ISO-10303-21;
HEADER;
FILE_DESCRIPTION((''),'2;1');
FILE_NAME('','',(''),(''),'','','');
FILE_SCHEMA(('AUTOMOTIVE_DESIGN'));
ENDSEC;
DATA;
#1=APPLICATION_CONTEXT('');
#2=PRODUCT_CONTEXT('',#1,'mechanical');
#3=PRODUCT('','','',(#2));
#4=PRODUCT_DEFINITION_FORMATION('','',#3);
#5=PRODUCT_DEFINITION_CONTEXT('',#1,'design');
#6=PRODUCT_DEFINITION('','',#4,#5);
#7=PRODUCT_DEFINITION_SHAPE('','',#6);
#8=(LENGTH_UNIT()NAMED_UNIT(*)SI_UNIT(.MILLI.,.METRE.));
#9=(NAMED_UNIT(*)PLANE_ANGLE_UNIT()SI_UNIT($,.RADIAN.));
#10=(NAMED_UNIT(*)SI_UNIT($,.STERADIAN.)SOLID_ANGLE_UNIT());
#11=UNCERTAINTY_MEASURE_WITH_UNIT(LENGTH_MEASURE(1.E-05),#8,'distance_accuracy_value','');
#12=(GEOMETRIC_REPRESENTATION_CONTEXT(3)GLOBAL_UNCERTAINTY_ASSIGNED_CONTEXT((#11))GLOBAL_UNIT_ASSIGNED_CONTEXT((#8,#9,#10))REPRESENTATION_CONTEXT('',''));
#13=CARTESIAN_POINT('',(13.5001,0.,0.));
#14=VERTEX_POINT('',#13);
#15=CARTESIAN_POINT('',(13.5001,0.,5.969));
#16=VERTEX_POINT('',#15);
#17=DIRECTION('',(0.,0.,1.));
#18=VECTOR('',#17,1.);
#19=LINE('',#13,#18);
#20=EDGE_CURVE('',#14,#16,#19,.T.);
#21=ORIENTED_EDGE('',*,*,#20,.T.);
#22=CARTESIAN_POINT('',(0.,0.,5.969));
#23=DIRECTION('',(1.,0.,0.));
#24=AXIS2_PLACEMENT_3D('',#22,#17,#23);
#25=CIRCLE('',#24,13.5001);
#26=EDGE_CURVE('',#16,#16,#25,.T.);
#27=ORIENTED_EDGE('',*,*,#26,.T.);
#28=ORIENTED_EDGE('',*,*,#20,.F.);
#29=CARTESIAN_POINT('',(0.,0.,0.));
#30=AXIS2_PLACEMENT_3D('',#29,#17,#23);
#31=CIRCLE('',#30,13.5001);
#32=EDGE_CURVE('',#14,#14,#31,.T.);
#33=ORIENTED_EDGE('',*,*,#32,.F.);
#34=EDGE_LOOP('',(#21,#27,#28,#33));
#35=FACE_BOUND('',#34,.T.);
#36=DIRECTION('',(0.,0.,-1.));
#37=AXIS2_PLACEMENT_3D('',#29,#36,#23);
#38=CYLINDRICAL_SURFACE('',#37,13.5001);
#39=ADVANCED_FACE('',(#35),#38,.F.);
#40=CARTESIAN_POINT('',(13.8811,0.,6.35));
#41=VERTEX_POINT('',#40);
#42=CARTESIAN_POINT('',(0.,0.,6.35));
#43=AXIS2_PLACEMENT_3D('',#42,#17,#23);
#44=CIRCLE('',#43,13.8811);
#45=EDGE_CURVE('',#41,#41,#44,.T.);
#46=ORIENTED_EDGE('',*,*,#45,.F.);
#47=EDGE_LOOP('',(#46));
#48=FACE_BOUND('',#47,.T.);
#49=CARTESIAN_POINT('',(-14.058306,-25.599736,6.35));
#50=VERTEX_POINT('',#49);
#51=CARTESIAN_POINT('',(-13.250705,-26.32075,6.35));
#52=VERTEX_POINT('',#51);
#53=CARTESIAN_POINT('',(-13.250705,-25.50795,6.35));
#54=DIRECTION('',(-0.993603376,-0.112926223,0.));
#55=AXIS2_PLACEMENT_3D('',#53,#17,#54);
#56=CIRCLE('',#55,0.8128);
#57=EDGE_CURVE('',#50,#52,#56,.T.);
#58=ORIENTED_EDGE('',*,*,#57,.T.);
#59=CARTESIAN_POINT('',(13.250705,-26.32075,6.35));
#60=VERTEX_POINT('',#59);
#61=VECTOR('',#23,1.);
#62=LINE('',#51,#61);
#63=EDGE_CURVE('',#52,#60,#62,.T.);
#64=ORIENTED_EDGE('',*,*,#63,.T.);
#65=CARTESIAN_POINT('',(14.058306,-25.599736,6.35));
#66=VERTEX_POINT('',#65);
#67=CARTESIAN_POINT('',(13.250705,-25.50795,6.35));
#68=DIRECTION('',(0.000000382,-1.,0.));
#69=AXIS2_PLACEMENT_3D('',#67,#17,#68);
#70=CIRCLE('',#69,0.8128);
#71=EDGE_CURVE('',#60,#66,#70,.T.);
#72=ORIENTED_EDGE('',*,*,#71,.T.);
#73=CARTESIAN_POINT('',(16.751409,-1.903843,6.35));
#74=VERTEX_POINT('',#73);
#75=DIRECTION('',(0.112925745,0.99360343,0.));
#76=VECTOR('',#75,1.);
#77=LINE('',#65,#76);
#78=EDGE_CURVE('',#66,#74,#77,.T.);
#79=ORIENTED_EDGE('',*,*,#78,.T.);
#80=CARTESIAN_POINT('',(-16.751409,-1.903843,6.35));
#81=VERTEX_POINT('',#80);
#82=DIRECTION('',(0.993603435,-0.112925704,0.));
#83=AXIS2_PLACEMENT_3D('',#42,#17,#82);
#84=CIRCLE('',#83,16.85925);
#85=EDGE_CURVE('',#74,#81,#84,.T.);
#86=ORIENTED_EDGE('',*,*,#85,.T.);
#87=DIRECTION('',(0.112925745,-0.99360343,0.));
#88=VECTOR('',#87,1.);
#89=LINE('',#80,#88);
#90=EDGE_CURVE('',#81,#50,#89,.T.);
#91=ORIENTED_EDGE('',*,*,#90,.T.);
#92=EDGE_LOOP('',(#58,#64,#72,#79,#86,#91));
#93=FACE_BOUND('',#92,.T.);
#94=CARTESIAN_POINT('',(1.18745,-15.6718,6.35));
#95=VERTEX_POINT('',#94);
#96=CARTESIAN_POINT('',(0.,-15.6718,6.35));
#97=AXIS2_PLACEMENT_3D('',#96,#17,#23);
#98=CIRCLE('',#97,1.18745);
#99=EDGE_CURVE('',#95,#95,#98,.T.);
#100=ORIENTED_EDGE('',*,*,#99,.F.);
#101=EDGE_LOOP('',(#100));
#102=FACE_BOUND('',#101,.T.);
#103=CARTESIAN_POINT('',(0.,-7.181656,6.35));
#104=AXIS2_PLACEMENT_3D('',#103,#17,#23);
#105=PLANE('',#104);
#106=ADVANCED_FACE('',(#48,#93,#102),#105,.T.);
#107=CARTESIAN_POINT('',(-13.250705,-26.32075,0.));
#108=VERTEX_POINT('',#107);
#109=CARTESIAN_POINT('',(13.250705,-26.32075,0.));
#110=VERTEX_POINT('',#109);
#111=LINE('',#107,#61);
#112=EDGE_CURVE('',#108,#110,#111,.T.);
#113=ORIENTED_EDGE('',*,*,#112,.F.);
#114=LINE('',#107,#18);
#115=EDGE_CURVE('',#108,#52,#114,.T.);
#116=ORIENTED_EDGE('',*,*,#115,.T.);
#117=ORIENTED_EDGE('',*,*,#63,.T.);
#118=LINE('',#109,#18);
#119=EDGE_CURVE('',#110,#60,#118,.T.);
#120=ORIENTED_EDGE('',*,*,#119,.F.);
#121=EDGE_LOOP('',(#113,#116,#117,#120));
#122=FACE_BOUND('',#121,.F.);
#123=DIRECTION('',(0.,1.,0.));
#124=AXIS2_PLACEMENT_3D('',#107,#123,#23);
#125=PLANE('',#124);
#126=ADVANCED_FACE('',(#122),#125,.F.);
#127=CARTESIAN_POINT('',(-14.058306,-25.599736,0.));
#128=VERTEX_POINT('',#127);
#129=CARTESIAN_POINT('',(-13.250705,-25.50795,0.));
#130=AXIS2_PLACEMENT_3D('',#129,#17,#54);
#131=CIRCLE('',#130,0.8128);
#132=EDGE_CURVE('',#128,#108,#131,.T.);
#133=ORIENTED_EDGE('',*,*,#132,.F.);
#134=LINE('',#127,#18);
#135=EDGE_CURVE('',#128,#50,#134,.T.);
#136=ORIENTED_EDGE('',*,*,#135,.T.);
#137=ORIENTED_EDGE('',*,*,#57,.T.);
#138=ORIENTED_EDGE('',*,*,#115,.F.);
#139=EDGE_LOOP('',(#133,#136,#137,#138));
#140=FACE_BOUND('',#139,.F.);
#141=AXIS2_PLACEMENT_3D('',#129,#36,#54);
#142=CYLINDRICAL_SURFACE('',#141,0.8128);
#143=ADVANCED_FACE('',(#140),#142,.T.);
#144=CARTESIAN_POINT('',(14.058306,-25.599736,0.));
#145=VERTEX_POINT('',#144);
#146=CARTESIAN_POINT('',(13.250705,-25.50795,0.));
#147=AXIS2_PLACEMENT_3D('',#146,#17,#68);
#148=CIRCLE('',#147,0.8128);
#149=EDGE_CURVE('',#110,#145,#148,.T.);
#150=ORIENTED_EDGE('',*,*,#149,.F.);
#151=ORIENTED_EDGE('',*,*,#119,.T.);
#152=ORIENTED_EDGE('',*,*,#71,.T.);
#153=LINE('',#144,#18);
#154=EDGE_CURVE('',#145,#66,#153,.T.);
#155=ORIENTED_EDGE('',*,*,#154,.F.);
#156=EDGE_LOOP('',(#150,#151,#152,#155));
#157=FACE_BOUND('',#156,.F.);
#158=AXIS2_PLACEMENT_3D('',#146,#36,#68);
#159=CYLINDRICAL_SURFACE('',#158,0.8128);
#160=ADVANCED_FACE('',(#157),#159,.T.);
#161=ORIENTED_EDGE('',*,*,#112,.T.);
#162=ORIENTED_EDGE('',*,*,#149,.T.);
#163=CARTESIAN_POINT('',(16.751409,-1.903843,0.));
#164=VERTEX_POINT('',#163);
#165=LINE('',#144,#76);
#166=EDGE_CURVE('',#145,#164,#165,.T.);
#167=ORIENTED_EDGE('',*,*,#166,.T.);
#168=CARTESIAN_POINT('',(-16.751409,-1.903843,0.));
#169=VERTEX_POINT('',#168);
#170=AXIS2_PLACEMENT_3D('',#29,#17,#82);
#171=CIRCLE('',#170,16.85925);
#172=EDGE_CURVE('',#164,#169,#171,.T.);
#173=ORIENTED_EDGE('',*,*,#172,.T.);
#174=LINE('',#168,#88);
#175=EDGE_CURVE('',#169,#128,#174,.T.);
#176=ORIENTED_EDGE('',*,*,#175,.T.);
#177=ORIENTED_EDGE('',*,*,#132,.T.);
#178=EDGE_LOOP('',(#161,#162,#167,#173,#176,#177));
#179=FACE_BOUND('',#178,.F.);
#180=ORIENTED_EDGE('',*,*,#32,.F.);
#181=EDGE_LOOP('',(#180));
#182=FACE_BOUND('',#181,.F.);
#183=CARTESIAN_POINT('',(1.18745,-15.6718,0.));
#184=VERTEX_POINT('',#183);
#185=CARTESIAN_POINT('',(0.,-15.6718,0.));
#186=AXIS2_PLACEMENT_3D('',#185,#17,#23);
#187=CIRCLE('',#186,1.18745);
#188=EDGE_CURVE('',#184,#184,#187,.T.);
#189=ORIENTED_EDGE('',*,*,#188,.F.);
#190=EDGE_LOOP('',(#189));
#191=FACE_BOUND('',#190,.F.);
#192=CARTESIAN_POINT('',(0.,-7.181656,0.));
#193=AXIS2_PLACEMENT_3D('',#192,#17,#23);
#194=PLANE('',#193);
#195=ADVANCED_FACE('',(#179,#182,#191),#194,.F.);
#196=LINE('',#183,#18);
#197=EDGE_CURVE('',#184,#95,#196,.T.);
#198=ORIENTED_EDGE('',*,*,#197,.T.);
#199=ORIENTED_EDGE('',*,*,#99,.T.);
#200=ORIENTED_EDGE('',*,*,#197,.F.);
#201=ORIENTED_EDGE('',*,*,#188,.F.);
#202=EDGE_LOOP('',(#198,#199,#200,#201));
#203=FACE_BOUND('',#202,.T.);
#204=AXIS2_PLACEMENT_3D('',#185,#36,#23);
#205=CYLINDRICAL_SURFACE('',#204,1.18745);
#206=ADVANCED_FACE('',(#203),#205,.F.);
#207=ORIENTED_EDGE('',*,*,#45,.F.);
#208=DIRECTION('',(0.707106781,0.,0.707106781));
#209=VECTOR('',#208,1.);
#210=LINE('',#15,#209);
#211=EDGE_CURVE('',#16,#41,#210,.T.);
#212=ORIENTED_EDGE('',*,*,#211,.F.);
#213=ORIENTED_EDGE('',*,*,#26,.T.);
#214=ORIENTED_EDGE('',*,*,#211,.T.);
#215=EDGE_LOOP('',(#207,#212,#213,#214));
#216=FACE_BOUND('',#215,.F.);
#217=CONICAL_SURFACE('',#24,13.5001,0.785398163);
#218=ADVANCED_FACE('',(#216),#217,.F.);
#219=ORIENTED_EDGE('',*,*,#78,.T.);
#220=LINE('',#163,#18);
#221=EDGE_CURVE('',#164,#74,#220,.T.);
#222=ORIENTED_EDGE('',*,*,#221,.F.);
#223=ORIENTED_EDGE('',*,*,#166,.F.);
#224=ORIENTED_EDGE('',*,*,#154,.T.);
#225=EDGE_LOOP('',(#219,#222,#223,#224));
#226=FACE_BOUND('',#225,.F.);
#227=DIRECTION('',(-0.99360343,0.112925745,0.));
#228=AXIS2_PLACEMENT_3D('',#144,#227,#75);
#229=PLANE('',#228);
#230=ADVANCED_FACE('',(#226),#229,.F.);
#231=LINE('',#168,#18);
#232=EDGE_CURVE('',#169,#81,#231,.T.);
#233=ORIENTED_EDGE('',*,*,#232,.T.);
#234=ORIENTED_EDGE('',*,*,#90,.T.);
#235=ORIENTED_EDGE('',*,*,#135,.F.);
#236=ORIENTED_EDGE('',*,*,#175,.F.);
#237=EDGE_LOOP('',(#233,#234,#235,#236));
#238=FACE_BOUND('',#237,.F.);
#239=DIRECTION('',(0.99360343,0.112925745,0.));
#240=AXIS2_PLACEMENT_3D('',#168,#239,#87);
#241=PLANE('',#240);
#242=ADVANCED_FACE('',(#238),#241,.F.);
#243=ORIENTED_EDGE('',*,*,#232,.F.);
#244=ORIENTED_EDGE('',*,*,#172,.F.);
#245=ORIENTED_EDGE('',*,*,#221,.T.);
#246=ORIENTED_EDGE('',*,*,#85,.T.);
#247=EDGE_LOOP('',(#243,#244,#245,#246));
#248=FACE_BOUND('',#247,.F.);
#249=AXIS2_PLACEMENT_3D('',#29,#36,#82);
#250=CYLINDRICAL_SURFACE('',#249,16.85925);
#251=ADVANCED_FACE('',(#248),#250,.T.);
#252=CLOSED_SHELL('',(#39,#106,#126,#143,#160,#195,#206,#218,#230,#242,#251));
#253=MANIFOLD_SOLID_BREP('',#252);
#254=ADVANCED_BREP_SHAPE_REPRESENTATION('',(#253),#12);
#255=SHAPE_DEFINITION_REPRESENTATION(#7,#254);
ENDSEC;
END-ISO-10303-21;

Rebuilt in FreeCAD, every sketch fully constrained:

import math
import FreeCAD as App
import Part
import Sketcher
from FreeCAD import Vector
Q = App.Units.Quantity


def edges_at(feature, points):
    """Names of the edges that pass closest to the given points."""
    edges = feature.Shape.Edges
    near = lambda p: min(range(len(edges)), key=lambda i: edges[i].distToShape(Part.Vertex(*p))[0])
    return sorted({f"Edge{near(p) + 1}" for p in points})

doc = App.newDocument("Part")
body = doc.addObject("PartDesign::Body", "Body")

# Sketch on XY plane
sketch1 = body.newObject("Sketcher::SketchObject", "Sketch")
sketch1.AttachmentSupport = (doc.getObject("XY_Plane"), [""])
sketch1.MapMode = "FlatFace"
sketch1.addGeometry([
    Part.LineSegment(Vector(14.1, -25.6, 0), Vector(16.8, -1.9, 0)),  # 0
    Part.ArcOfCircle(Part.Circle(Vector(0, 0, 0), Vector(0, 0, 1), 16.9), math.radians(-6), math.radians(186)),  # 1
    Part.LineSegment(Vector(-16.8, -1.9, 0), Vector(-14.1, -25.6, 0)),  # 2
    Part.ArcOfCircle(Part.Circle(Vector(-13.3, -25.5, 0), Vector(0, 0, 1), 0.8), math.radians(-174), math.radians(-90)),  # 3
    Part.LineSegment(Vector(-13.3, -26.3, 0), Vector(13.3, -26.3, 0)),  # 4
    Part.ArcOfCircle(Part.Circle(Vector(13.3, -25.5, 0), Vector(0, 0, 1), 0.8), math.radians(-90), math.radians(-6)),  # 5
    Part.Circle(Vector(0, -15.7, 0), Vector(0, 0, 1), 1.2),  # 6
    Part.Circle(Vector(0, 0, 0), Vector(0, 0, 1), 13.5),  # 7
], False)
sketch1.addConstraint([
    Sketcher.Constraint("Tangent", 0, 2, 1, 1),
    Sketcher.Constraint("Tangent", 1, 2, 2, 1),
    Sketcher.Constraint("Tangent", 2, 2, 3, 1),
    Sketcher.Constraint("Tangent", 3, 2, 4, 1),
    Sketcher.Constraint("Tangent", 4, 2, 5, 1),
    Sketcher.Constraint("Tangent", 5, 2, 0, 1),
    Sketcher.Constraint("Horizontal", 4),
    Sketcher.Constraint("Coincident", 1, 3, -1, 1),
    Sketcher.Constraint("Coincident", 7, 3, -1, 1),
    Sketcher.Constraint("Equal", 3, 5),
    Sketcher.Constraint("PointOnObject", 6, 3, -2),
    Sketcher.Constraint("Horizontal", 0, 2, 1, 2),
    Sketcher.Constraint("Diameter", 7, Q("1.063 in")),
    Sketcher.Constraint("Radius", 3, Q("0.032 in")),
    Sketcher.Constraint("Diameter", 6, Q("0.0935 in")),
    Sketcher.Constraint("DistanceY", 6, 3, -1, 1, Q("0.617 in")),
    Sketcher.Constraint("Radius", 1, Q("16.85925 mm")),
    Sketcher.Constraint("DistanceX", 4, 1, 4, 2, Q("26.50141 mm")),
    Sketcher.Constraint("Distance", 0, Q("23.848441 mm")),
])
pad1 = body.newObject("PartDesign::Pad", "Pad")
pad1.Profile = sketch1
pad1.Length = Q("0.25 in")
doc.recompute()

chamfer = body.newObject("PartDesign::Chamfer", "Chamfer")
chamfer.Base = (pad1, edges_at(pad1, [(-13.5, 0, 6.35)]))
chamfer.Size = Q("0.015 in")

doc.recompute()
